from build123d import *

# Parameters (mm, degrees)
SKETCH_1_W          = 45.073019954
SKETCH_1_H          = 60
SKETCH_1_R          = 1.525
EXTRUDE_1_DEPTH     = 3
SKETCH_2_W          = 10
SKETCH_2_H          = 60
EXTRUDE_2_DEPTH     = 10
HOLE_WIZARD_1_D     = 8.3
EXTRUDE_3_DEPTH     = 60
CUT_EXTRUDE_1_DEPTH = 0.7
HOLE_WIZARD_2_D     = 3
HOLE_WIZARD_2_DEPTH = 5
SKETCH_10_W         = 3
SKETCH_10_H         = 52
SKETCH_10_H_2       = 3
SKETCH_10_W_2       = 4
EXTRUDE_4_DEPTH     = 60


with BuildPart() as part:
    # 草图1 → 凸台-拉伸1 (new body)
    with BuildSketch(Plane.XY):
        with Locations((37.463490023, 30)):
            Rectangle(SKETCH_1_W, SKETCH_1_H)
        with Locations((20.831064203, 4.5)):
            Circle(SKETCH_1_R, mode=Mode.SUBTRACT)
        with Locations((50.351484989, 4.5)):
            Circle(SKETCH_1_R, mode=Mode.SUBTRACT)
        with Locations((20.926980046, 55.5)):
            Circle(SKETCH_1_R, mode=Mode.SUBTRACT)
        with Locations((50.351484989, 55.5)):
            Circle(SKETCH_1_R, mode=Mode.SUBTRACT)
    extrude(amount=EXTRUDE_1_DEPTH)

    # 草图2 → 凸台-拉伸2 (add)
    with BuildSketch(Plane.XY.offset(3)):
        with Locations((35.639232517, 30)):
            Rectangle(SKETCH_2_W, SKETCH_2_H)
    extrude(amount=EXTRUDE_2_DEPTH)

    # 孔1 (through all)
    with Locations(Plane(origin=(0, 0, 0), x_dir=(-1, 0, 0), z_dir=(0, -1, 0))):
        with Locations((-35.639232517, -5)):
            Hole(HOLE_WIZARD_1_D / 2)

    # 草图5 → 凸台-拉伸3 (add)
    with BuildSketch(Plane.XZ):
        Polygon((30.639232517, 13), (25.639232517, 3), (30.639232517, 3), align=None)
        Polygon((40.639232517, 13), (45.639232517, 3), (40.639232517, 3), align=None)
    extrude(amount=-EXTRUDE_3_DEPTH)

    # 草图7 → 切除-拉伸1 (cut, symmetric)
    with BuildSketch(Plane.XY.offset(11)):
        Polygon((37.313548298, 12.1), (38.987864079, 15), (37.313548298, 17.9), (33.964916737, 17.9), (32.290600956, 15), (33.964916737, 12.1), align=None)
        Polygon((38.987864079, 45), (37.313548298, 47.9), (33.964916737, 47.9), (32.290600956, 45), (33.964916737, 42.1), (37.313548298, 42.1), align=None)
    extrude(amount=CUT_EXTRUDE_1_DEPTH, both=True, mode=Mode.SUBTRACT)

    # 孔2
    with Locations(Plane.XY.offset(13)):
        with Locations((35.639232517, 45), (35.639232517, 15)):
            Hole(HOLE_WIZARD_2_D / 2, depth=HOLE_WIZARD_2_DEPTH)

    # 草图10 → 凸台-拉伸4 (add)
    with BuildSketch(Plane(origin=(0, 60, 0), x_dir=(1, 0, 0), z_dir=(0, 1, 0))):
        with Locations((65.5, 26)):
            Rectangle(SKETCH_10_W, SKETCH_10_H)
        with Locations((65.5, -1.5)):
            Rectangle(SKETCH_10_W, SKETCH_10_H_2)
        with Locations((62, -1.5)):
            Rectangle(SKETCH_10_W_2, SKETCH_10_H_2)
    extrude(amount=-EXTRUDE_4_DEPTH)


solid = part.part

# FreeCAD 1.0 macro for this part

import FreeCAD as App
import Part
import Sketcher
Q = App.Units.Quantity


def add_polygon(sketch, points):
    """Adds a closed chain of lines whose ends are joined by coincident constraints."""
    first, n = sketch.GeometryCount, len(points)
    for a, b in zip(points, points[1:] + points[:1]):
        sketch.addGeometry(Part.LineSegment(App.Vector(*a, 0), App.Vector(*b, 0)), False)
    for i in range(n):
        sketch.addConstraint(Sketcher.Constraint("Coincident", first + i, 2, first + (i + 1) % n, 1))

doc = App.newDocument("Part")
params = doc.addObject("Spreadsheet::Sheet", "Params")
for row, (alias, value) in enumerate([
    ("sketch1_diameter", "3.05 mm"),
    ("sketch1_height", "60 mm"),
    ("pad1_length", "3 mm"),
    ("sketch2_width", "10 mm"),
    ("sketch2_height", "60 mm"),
    ("pad2_length", "10 mm"),
    ("sketch3_diameter", "8.3 mm"),
    ("hole_diameter", "8.3 mm"),
    ("sketch4_width", "5 mm"),
    ("sketch4_height", "10 mm"),
    ("pad3_length", "60 mm"),
    ("pocket1_length", "1.4 mm"),
    ("sketch6_diameter", "3 mm"),
    ("hole2_diameter", "3 mm"),
    ("hole2_depth", "5 mm"),
    ("sketch7_width", "4 mm"),
    ("sketch7_width2", "7 mm"),
    ("sketch7_height", "52 mm"),
    ("pad4_length", "60 mm"),
], start=1):
    params.set(f"A{row}", alias)
    params.set(f"B{row}", "=" + value)
    params.setAlias(f"B{row}", alias)

body = doc.addObject("PartDesign::Body", "Body")

# Sketch on XY plane
sketch1 = body.newObject("Sketcher::SketchObject", "Sketch")
sketch1.AttachmentSupport = (doc.getObject("XY_Plane"), [""])
sketch1.MapMode = "FlatFace"
add_polygon(sketch1, [(14.92698, 60), (14.92698, 0), (60, 0), (60, 60)])  # lines 0-3
sketch1.addGeometry(Part.Circle(App.Vector(20.831064, 4.5, 0), App.Vector(0, 0, 1), 1.525), False)  # 4
sketch1.addGeometry(Part.Circle(App.Vector(50.351485, 4.5, 0), App.Vector(0, 0, 1), 1.525), False)  # 5
sketch1.addGeometry(Part.Circle(App.Vector(20.92698, 55.5, 0), App.Vector(0, 0, 1), 1.525), False)  # 6
sketch1.addGeometry(Part.Circle(App.Vector(50.351485, 55.5, 0), App.Vector(0, 0, 1), 1.525), False)  # 7
sketch1.addConstraint(Sketcher.Constraint("Vertical", 0))
sketch1.addConstraint(Sketcher.Constraint("Horizontal", 1))
sketch1.addConstraint(Sketcher.Constraint("Vertical", 2))
sketch1.addConstraint(Sketcher.Constraint("Horizontal", 3))
sketch1.addConstraint(Sketcher.Constraint("Equal", 4, 5))
sketch1.addConstraint(Sketcher.Constraint("Equal", 5, 6))
sketch1.addConstraint(Sketcher.Constraint("Equal", 6, 7))
sketch1.addConstraint(Sketcher.Constraint("PointOnObject", 0, 2, -1))
sketch1.addConstraint(Sketcher.Constraint("Horizontal", 4, 3, 5, 3))
sketch1.addConstraint(Sketcher.Constraint("Horizontal", 6, 3, 7, 3))
sketch1.addConstraint(Sketcher.Constraint("Vertical", 5, 3, 7, 3))
sketch1.addConstraint(Sketcher.Constraint("Diameter", 4, Q("3.05 mm")))
sketch1.addConstraint(Sketcher.Constraint("DistanceY", 0, 2, 0, 1, Q("60 mm")))
sketch1.addConstraint(Sketcher.Constraint("DistanceX", -1, 1, 1, 2, Q("60 mm")))
sketch1.addConstraint(Sketcher.Constraint("DistanceY", 4, 3, 6, 3, Q("51 mm")))
sketch1.addConstraint(Sketcher.Constraint("DistanceX", 0, 2, 6, 3, Q("6 mm")))
sketch1.addConstraint(Sketcher.Constraint("DistanceY", -1, 1, 4, 3, Q("4.5 mm")))
sketch1.addConstraint(Sketcher.Constraint("DistanceX", 1, 1, 1, 2, Q("45.07302 mm")))
sketch1.addConstraint(Sketcher.Constraint("DistanceX", 4, 3, 5, 3, Q("29.520421 mm")))
sketch1.addConstraint(Sketcher.Constraint("DistanceX", -1, 1, 4, 3, Q("20.831064 mm")))
sketch1.setExpression("Constraints[15]", "Params.sketch1_diameter")
sketch1.setExpression("Constraints[16]", "Params.sketch1_height")
pad1 = body.newObject("PartDesign::Pad", "Pad")
pad1.Profile = sketch1
pad1.setExpression("Length", "Params.pad1_length")

# Sketch on XY plane
sketch2 = body.newObject("Sketcher::SketchObject", "Sketch001")
sketch2.AttachmentSupport = (doc.getObject("XY_Plane"), [""])
sketch2.MapMode = "FlatFace"
sketch2.AttachmentOffset = App.Placement(App.Vector(0, 0, 3), App.Rotation())
add_polygon(sketch2, [(30.639233, 60), (30.639233, 0), (40.639233, 0), (40.639233, 60)])  # lines 0-3
sketch2.addConstraint(Sketcher.Constraint("Vertical", 0))
sketch2.addConstraint(Sketcher.Constraint("Horizontal", 1))
sketch2.addConstraint(Sketcher.Constraint("Vertical", 2))
sketch2.addConstraint(Sketcher.Constraint("Horizontal", 3))
sketch2.addConstraint(Sketcher.Constraint("PointOnObject", 0, 2, -1))
sketch2.addConstraint(Sketcher.Constraint("DistanceX", 1, 1, 1, 2, Q("10 mm")))
sketch2.addConstraint(Sketcher.Constraint("DistanceY", 0, 2, 0, 1, Q("60 mm")))
sketch2.addConstraint(Sketcher.Constraint("DistanceX", -1, 1, 0, 2, Q("30.639233 mm")))
sketch2.setExpression("Constraints[9]", "Params.sketch2_width")
sketch2.setExpression("Constraints[10]", "Params.sketch2_height")
pad2 = body.newObject("PartDesign::Pad", "Pad001")
pad2.Profile = sketch2
pad2.setExpression("Length", "Params.pad2_length")

# Sketch on XZ plane
sketch3 = body.newObject("Sketcher::SketchObject", "Sketch002")
sketch3.AttachmentSupport = (doc.getObject("XZ_Plane"), [""])
sketch3.MapMode = "FlatFace"
sketch3.addGeometry(Part.Circle(App.Vector(35.639233, 5, 0), App.Vector(0, 0, 1), 4.15), False)
sketch3.addConstraint(Sketcher.Constraint("Diameter", 0, Q("8.3 mm")))
sketch3.addConstraint(Sketcher.Constraint("DistanceY", -1, 1, 0, 3, Q("5 mm")))
sketch3.addConstraint(Sketcher.Constraint("DistanceX", -1, 1, 0, 3, Q("35.639233 mm")))
sketch3.setExpression("Constraints[0]", "Params.sketch3_diameter")
doc.recompute()
hole = body.newObject("PartDesign::Hole", "Hole")
hole.Profile = sketch3
hole.ThreadType = "None"
hole.setExpression("Diameter", "Params.hole_diameter")
hole.DepthType = "ThroughAll"

# Sketch on XZ plane
sketch4 = body.newObject("Sketcher::SketchObject", "Sketch003")
sketch4.AttachmentSupport = (doc.getObject("XZ_Plane"), [""])
sketch4.MapMode = "FlatFace"
add_polygon(sketch4, [(30.639233, 13), (25.639233, 3), (30.639233, 3)])  # lines 0-2
add_polygon(sketch4, [(45.639233, 3), (40.639233, 13), (40.639233, 3)])  # lines 3-5
sketch4.addConstraint(Sketcher.Constraint("Horizontal", 1))
sketch4.addConstraint(Sketcher.Constraint("Vertical", 2))
sketch4.addConstraint(Sketcher.Constraint("Vertical", 4))
sketch4.addConstraint(Sketcher.Constraint("Horizontal", 5))
sketch4.addConstraint(Sketcher.Constraint("Horizontal", 2, 2, 3, 2))
sketch4.addConstraint(Sketcher.Constraint("Horizontal", 1, 2, 4, 2))
sketch4.addConstraint(Sketcher.Constraint("Equal", 1, 5))
sketch4.addConstraint(Sketcher.Constraint("DistanceX", 1, 1, 1, 2, Q("5 mm")))
sketch4.addConstraint(Sketcher.Constraint("DistanceY", 2, 1, 2, 2, Q("10 mm")))
sketch4.addConstraint(Sketcher.Constraint("DistanceY", -1, 1, 0, 2, Q("3 mm")))
sketch4.addConstraint(Sketcher.Constraint("DistanceX", 2, 2, 3, 2, Q("10 mm")))
sketch4.addConstraint(Sketcher.Constraint("DistanceX", -1, 1, 0, 2, Q("25.639233 mm")))
sketch4.setExpression("Constraints[13]", "Params.sketch4_width")
sketch4.setExpression("Constraints[14]", "Params.sketch4_height")
pad3 = body.newObject("PartDesign::Pad", "Pad002")
pad3.Profile = sketch4
pad3.setExpression("Length", "Params.pad3_length")
pad3.Reversed = True

# Sketch on XY plane
sketch5 = body.newObject("Sketcher::SketchObject", "Sketch004")
sketch5.AttachmentSupport = (doc.getObject("XY_Plane"), [""])
sketch5.MapMode = "FlatFace"
sketch5.AttachmentOffset = App.Placement(App.Vector(0, 0, 11), App.Rotation())
add_polygon(sketch5, [(37.313548, 12.1), (38.987864, 15), (37.313548, 17.9), (33.964917, 17.9), (32.290601, 15), (33.964917, 12.1)])  # lines 0-5
add_polygon(sketch5, [(38.987864, 45), (37.313548, 47.9), (33.964917, 47.9), (32.290601, 45), (33.964917, 42.1), (37.313548, 42.1)])  # lines 6-11
sketch5.addConstraint(Sketcher.Constraint("Horizontal", 2))
sketch5.addConstraint(Sketcher.Constraint("Horizontal", 5))
sketch5.addConstraint(Sketcher.Constraint("Horizontal", 7))
sketch5.addConstraint(Sketcher.Constraint("Horizontal", 10))
sketch5.addConstraint(Sketcher.Constraint("Parallel", 0, 3))
sketch5.addConstraint(Sketcher.Constraint("Parallel", 1, 4))
sketch5.addConstraint(Sketcher.Constraint("Parallel", 4, 6))
sketch5.addConstraint(Sketcher.Constraint("Parallel", 3, 8))
sketch5.addConstraint(Sketcher.Constraint("Parallel", 6, 9))
sketch5.addConstraint(Sketcher.Constraint("Parallel", 8, 11))
sketch5.addConstraint(Sketcher.Constraint("Horizontal", 0, 2, 3, 2))
sketch5.addConstraint(Sketcher.Constraint("Horizontal", 8, 2, 11, 2))
sketch5.addConstraint(Sketcher.Constraint("Vertical", 2, 2, 4, 2))
sketch5.addConstraint(Sketcher.Constraint("Vertical", 1, 2, 5, 2))
sketch5.addConstraint(Sketcher.Constraint("Vertical", 5, 2, 6, 2))
sketch5.addConstraint(Sketcher.Constraint("Vertical", 4, 2, 7, 2))
sketch5.addConstraint(Sketcher.Constraint("Vertical", 3, 2, 8, 2))
sketch5.addConstraint(Sketcher.Constraint("Vertical", 7, 2, 9, 2))
sketch5.addConstraint(Sketcher.Constraint("Angle", 0, Q("60 deg")))
sketch5.addConstraint(Sketcher.Constraint("DistanceY", -1, 1, 0, 2, Q("15 mm")))
sketch5.addConstraint(Sketcher.Constraint("DistanceY", -1, 1, 8, 2, Q("45 mm")))
sketch5.addConstraint(Sketcher.Constraint("DistanceY", -1, 1, 1, 2, Q("17.9 mm")))
sketch5.addConstraint(Sketcher.Constraint("DistanceX", 2, 2, 2, 1, Q("3.348632 mm")))
sketch5.addConstraint(Sketcher.Constraint("DistanceX", -1, 1, 3, 2, Q("32.290601 mm")))
pocket1 = body.newObject("PartDesign::Pocket", "Pocket")
pocket1.Profile = sketch5
pocket1.setExpression("Length", "Params.pocket1_length")
pocket1.Midplane = True

# Sketch on XY plane
sketch6 = body.newObject("Sketcher::SketchObject", "Sketch005")
sketch6.AttachmentSupport = (doc.getObject("XY_Plane"), [""])
sketch6.MapMode = "FlatFace"
sketch6.AttachmentOffset = App.Placement(App.Vector(0, 0, 13), App.Rotation())
sketch6.addGeometry(Part.Circle(App.Vector(35.639233, 45, 0), App.Vector(0, 0, 1), 1.5), False)
sketch6.addGeometry(Part.Circle(App.Vector(35.639233, 15, 0), App.Vector(0, 0, 1), 1.5), False)
sketch6.addConstraint(Sketcher.Constraint("Equal", 0, 1))
sketch6.addConstraint(Sketcher.Constraint("Vertical", 0, 3, 1, 3))
sketch6.addConstraint(Sketcher.Constraint("Diameter", 0, Q("3 mm")))
sketch6.addConstraint(Sketcher.Constraint("DistanceY", -1, 1, 0, 3, Q("45 mm")))
sketch6.addConstraint(Sketcher.Constraint("DistanceY", -1, 1, 1, 3, Q("15 mm")))
sketch6.addConstraint(Sketcher.Constraint("DistanceX", -1, 1, 0, 3, Q("35.639233 mm")))
sketch6.setExpression("Constraints[2]", "Params.sketch6_diameter")
doc.recompute()
hole2 = body.newObject("PartDesign::Hole", "Hole001")
hole2.Profile = sketch6
hole2.ThreadType = "None"
hole2.setExpression("Diameter", "Params.hole2_diameter")
hole2.DepthType = "Dimension"
hole2.setExpression("Depth", "Params.hole2_depth")
hole2.DrillPoint = "Flat"

# Sketch on XZ plane
sketch7 = body.newObject("Sketcher::SketchObject", "Sketch006")
sketch7.AttachmentSupport = (doc.getObject("XZ_Plane"), [""])
sketch7.MapMode = "FlatFace"
sketch7.AttachmentOffset = App.Placement(App.Vector(0, 0, -60), App.Rotation())
add_polygon(sketch7, [(64, -52), (64, 0), (60, 0), (60, 3), (67, 3), (67, -52)])  # lines 0-5
sketch7.addConstraint(Sketcher.Constraint("Vertical", 0))
sketch7.addConstraint(Sketcher.Constraint("Horizontal", 1))
sketch7.addConstraint(Sketcher.Constraint("Vertical", 2))
sketch7.addConstraint(Sketcher.Constraint("Horizontal", 3))
sketch7.addConstraint(Sketcher.Constraint("Vertical", 4))
sketch7.addConstraint(Sketcher.Constraint("Horizontal", 5))
sketch7.addConstraint(Sketcher.Constraint("PointOnObject", 0, 2, -1))
sketch7.addConstraint(Sketcher.Constraint("Equal", 5, 2))
sketch7.addConstraint(Sketcher.Constraint("DistanceX", 1, 2, 1, 1, Q("4 mm")))
sketch7.addConstraint(Sketcher.Constraint("DistanceX", 3, 1, 3, 2, Q("7 mm")))
sketch7.addConstraint(Sketcher.Constraint("DistanceY", 0, 1, 0, 2, Q("52 mm")))
sketch7.addConstraint(Sketcher.Constraint("DistanceX", -1, 1, 0, 2, Q("64 mm")))
sketch7.setExpression("Constraints[14]", "Params.sketch7_width")
sketch7.setExpression("Constraints[15]", "Params.sketch7_width2")
sketch7.setExpression("Constraints[16]", "Params.sketch7_height")
pad4 = body.newObject("PartDesign::Pad", "Pad003")
pad4.Profile = sketch7
pad4.setExpression("Length", "Params.pad4_length")

doc.recompute()
